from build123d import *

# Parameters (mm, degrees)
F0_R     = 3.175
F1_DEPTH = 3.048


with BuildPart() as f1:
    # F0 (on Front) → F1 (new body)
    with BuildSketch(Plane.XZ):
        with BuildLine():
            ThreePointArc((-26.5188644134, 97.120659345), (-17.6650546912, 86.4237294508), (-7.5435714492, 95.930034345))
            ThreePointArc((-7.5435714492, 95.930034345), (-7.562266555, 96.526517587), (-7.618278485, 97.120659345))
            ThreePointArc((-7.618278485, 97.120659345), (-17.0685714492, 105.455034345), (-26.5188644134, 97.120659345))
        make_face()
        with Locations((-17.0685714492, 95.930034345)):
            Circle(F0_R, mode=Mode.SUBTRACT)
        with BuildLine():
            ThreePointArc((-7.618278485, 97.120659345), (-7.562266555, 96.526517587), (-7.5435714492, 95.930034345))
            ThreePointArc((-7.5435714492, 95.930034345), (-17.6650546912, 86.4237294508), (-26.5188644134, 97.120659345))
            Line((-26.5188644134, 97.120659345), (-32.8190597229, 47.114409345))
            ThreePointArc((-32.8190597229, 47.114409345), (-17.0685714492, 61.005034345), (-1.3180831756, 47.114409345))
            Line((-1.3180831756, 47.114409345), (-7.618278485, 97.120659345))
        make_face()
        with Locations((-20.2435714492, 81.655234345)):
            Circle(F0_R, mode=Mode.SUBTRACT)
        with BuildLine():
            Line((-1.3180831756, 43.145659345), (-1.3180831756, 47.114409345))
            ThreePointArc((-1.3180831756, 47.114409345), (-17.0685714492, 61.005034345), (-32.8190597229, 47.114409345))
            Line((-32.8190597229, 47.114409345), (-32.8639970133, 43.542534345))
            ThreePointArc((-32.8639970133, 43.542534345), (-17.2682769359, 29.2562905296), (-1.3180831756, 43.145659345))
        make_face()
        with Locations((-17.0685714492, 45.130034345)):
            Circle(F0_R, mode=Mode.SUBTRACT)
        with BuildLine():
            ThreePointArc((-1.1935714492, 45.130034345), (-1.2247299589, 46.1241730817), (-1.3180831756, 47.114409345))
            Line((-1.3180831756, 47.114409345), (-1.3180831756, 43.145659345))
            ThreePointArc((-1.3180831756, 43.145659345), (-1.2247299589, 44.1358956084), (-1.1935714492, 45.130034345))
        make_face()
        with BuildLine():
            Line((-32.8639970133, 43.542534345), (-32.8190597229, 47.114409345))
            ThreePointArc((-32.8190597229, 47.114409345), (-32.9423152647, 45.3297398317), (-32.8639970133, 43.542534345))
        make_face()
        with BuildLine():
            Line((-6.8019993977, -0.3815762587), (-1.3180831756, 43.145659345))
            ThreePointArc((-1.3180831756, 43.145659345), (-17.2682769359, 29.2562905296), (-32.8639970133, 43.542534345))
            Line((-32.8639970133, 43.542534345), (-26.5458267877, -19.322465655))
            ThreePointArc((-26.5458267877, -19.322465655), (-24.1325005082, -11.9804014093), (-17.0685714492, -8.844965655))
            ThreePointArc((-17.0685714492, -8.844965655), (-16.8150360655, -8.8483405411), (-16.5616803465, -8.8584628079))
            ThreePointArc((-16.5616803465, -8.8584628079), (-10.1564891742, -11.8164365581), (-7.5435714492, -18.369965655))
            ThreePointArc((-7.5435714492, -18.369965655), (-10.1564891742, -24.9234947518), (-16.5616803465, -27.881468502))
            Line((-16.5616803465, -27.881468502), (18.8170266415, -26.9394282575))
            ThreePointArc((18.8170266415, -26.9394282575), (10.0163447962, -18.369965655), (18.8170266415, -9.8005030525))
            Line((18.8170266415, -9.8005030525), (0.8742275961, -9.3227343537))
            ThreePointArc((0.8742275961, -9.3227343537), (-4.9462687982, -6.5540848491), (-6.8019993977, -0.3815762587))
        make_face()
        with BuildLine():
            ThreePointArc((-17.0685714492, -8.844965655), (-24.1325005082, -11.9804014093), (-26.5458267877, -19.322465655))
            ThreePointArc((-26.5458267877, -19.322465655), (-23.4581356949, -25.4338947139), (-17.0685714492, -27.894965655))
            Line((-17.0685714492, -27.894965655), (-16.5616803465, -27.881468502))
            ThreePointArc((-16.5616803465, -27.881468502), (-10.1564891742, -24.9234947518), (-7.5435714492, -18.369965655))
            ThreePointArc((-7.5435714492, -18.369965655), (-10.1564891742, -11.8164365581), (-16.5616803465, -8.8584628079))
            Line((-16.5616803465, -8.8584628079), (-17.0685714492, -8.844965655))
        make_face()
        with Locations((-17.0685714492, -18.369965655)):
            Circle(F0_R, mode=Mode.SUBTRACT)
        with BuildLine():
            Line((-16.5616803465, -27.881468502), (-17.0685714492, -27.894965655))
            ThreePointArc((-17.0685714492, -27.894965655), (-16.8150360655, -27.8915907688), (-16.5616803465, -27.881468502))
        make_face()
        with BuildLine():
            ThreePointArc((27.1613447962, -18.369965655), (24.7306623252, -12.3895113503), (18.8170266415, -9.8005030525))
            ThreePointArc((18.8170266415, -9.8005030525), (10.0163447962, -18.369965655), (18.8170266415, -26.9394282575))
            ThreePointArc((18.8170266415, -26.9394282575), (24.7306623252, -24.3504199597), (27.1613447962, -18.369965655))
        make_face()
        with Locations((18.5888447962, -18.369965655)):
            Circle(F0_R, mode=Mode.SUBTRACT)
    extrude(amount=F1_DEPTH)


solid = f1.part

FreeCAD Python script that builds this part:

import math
import FreeCAD as App
import Part
import Sketcher
from FreeCAD import Vector
Q = App.Units.Quantity

doc = App.newDocument("Part")
body = doc.addObject("PartDesign::Body", "Body")

# Sketch on XZ plane
sketch1 = body.newObject("Sketcher::SketchObject", "Sketch")
sketch1.AttachmentSupport = (doc.getObject("XZ_Plane"), [""])
sketch1.MapMode = "FlatFace"
sketch1.addGeometry([
    Part.ArcOfCircle(Part.Circle(Vector(-17.1, 95.9, 0), Vector(0, 0, 1), 9.5), math.radians(7), math.radians(173)),  # 0
    Part.LineSegment(Vector(-26.5, 97.1, 0), Vector(-32.8, 47.1, 0)),  # 1
    Part.ArcOfCircle(Part.Circle(Vector(-17.1, 45.1, 0), Vector(0, 0, 1), 15.9), math.radians(172.82), math.radians(185.74)),  # 2
    Part.LineSegment(Vector(-32.9, 43.5, 0), Vector(-26.5, -19.3, 0)),  # 3
    Part.ArcOfCircle(Part.Circle(Vector(-17.1, -18.4, 0), Vector(0, 0, 1), 9.5), math.radians(-174), math.radians(-90)),  # 4
    Part.ArcOfCircle(Part.Circle(Vector(-17.1, -18.4, 0), Vector(0, 0, 1), 9.5), math.radians(-90), math.radians(-86.95)),  # 5
    Part.LineSegment(Vector(-16.6, -27.9, 0), Vector(18.8, -26.9, 0)),  # 6
    Part.ArcOfCircle(Part.Circle(Vector(18.6, -18.4, 0), Vector(0, 0, 1), 8.6), math.radians(-88), math.radians(88)),  # 7
    Part.LineSegment(Vector(18.8, -9.8, 0), Vector(0.9, -9.3, 0)),  # 8
    Part.ArcOfCircle(Part.Circle(Vector(1.1, -1.4, 0), Vector(0, 0, 1), 8), math.radians(173), math.radians(268)),  # 9
    Part.LineSegment(Vector(-6.8, -0.4, 0), Vector(-1.3, 43.1, 0)),  # 10
    Part.ArcOfCircle(Part.Circle(Vector(-17.1, 45.1, 0), Vector(0, 0, 1), 15.9), math.radians(-7.18), math.radians(0)),  # 11
    Part.ArcOfCircle(Part.Circle(Vector(-17.1, 45.1, 0), Vector(0, 0, 1), 15.9), math.radians(0), math.radians(7.18)),  # 12
    Part.LineSegment(Vector(-1.3, 47.1, 0), Vector(-7.6, 97.1, 0)),  # 13
    Part.Circle(Vector(-17.1, -18.4, 0), Vector(0, 0, 1), 3.2),  # 14
    Part.ArcOfCircle(Part.Circle(Vector(-17.1, -18.4, 0), Vector(0, 0, 1), 9.5), math.radians(86.95), math.radians(90)),  # 15
    Part.LineSegment(Vector(-16.6, -8.9, 0), Vector(-17.1, -8.8, 0)),  # 16
    Part.Circle(Vector(18.6, -18.4, 0), Vector(0, 0, 1), 3.2),  # 17
    Part.Circle(Vector(-17.1, 45.1, 0), Vector(0, 0, 1), 3.2),  # 18
    Part.Circle(Vector(-20.2, 81.7, 0), Vector(0, 0, 1), 3.2),  # 19
    Part.Circle(Vector(-17.1, 95.9, 0), Vector(0, 0, 1), 3.2),  # 20
], False)
sketch1.addConstraint([
    Sketcher.Constraint("Tangent", 0, 2, 1, 1),
    Sketcher.Constraint("Tangent", 1, 2, 2, 1),
    Sketcher.Constraint("Tangent", 2, 2, 3, 1),
    Sketcher.Constraint("Tangent", 3, 2, 4, 1),
    Sketcher.Constraint("Tangent", 4, 2, 5, 1),
    Sketcher.Constraint("Coincident", 5, 2, 6, 1),
    Sketcher.Constraint("Tangent", 6, 2, 7, 1),
    Sketcher.Constraint("Tangent", 7, 2, 8, 1),
    Sketcher.Constraint("Tangent", 8, 2, 9, 2),
    Sketcher.Constraint("Tangent", 9, 1, 10, 1),
    Sketcher.Constraint("Tangent", 10, 2, 11, 1),
    Sketcher.Constraint("Tangent", 11, 2, 12, 1),
    Sketcher.Constraint("Tangent", 12, 2, 13, 1),
    Sketcher.Constraint("Tangent", 13, 2, 0, 1),
    Sketcher.Constraint("Coincident", 15, 1, 16, 1),
    Sketcher.Constraint("Coincident", 16, 2, 15, 2),
    Sketcher.Constraint("Coincident", 11, 3, 2, 3),
    Sketcher.Constraint("Coincident", 14, 3, 4, 3),
    Sketcher.Constraint("Coincident", 15, 3, 4, 3),
    Sketcher.Constraint("Coincident", 17, 3, 7, 3),
    Sketcher.Constraint("Coincident", 18, 3, 2, 3),
    Sketcher.Constraint("Coincident", 20, 3, 0, 3),
    Sketcher.Constraint("Equal", 0, 4),
    Sketcher.Constraint("Equal", 4, 5),
    Sketcher.Constraint("Equal", 2, 11),
    Sketcher.Constraint("Equal", 11, 12),
    Sketcher.Constraint("Equal", 5, 15),
    Sketcher.Constraint("Equal", 14, 17),
    Sketcher.Constraint("Equal", 17, 18),
    Sketcher.Constraint("Equal", 18, 19),
    Sketcher.Constraint("Equal", 19, 20),
    Sketcher.Constraint("Parallel", 1, 10),
    Sketcher.Constraint("Parallel", 8, 16),
    Sketcher.Constraint("Horizontal", 5, 3, 7, 3),
    Sketcher.Constraint("Horizontal", 18, 3, 11, 2),
    Sketcher.Constraint("Horizontal", 1, 2, 12, 2),
    Sketcher.Constraint("Vertical", 2, 3, 4, 3),
    Sketcher.Constraint("Vertical", 20, 3, 4, 2),
    Sketcher.Constraint("Vertical", 6, 2, 7, 2),
    Sketcher.Constraint("Vertical", 5, 2, 15, 1),
    Sketcher.Constraint("Vertical", 4, 2, 16, 2),
    Sketcher.Constraint("Diameter", 14, Q("0.25 in")),
    Sketcher.Constraint("Radius", 0, Q("0.375 in")),
    Sketcher.Constraint("Radius", 2, Q("0.625 in")),
    Sketcher.Constraint("Radius", 9, Q("0.313 in")),
    Sketcher.Constraint("DistanceY", 2, 3, 0, 3, Q("2 in")),
    Sketcher.Constraint("Radius", 7, Q("0.3375 in")),
    Sketcher.Constraint("DistanceY", 4, 3, 2, 3, Q("2.5 in")),
    Sketcher.Constraint("DistanceX", 19, 3, 0, 3, Q("0.125 in")),
    Sketcher.Constraint("DistanceY", 19, 3, 0, 3, Q("0.562 in")),
    Sketcher.Constraint("DistanceX", 9, 1, -1, 1, 6.801999),
    Sketcher.Constraint("DistanceX", 9, 3, 7, 3, 17.503),
    Sketcher.Constraint("DistanceY", 9, 3, -1, 1, 1.375351),
])
pad1 = body.newObject("PartDesign::Pad", "Pad")
pad1.Profile = sketch1
pad1.Length = Q("0.12 in")

doc.recompute()
